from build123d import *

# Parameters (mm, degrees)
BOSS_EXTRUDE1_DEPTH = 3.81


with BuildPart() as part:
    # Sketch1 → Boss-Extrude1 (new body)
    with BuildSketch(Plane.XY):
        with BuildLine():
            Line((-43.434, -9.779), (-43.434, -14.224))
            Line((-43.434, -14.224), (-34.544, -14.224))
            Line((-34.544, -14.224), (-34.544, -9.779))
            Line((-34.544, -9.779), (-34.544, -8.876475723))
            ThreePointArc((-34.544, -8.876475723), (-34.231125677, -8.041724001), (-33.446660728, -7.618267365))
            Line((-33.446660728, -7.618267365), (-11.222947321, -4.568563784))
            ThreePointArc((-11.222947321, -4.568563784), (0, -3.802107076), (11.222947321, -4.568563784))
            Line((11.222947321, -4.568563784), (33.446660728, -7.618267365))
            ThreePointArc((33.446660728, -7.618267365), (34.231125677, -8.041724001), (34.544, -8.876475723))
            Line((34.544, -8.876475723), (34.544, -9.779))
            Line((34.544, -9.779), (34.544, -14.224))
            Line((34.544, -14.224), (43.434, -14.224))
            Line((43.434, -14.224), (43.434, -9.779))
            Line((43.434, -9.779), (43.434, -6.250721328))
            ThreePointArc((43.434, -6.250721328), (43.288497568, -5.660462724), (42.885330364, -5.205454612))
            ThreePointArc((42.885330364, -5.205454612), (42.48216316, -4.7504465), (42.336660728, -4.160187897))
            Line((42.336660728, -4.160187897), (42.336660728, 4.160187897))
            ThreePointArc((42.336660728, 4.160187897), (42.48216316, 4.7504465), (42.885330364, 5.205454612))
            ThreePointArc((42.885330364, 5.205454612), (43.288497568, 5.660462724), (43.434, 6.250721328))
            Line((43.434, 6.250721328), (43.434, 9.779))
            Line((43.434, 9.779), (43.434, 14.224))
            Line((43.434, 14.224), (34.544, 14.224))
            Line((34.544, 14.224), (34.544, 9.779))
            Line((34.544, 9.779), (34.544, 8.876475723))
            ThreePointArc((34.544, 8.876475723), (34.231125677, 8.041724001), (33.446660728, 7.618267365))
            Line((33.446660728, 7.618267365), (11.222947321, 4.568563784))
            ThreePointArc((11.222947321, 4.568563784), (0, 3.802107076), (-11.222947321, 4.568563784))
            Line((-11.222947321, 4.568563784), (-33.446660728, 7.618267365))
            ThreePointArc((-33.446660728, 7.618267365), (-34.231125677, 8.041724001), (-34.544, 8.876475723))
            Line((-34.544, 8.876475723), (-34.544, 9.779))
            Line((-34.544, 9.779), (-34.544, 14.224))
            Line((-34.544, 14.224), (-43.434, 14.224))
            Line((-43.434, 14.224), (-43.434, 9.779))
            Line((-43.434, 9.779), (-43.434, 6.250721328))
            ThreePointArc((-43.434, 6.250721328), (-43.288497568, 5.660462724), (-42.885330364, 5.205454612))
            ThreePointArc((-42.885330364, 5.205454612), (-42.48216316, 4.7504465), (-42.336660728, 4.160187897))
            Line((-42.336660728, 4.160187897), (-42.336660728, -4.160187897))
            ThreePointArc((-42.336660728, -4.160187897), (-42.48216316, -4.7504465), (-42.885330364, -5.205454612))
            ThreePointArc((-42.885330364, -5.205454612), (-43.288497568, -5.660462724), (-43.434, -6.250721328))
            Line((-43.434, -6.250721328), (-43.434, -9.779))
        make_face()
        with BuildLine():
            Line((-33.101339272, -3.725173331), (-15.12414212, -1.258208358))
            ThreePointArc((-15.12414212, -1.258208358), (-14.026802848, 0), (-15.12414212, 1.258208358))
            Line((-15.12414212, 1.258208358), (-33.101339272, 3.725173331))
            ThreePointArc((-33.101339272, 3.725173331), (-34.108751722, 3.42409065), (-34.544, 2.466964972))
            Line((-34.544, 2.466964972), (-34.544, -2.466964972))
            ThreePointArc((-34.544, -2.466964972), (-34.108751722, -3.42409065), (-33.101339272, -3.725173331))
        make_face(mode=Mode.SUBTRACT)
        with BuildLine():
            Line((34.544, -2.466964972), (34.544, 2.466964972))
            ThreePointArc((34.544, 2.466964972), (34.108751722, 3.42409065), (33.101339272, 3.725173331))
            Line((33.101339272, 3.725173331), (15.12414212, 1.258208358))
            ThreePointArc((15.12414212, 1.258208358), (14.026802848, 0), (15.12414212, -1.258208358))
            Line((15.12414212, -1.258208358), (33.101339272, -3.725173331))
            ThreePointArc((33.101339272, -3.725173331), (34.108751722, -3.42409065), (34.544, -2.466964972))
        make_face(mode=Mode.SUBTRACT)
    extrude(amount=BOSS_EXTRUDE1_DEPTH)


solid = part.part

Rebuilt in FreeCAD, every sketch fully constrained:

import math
import FreeCAD as App
import Part
import Sketcher
from FreeCAD import Vector
Q = App.Units.Quantity

doc = App.newDocument("Part")
body = doc.addObject("PartDesign::Body", "Body")

sketch1 = body.newObject("Sketcher::SketchObject", "Sketch")
sketch1.AttachmentSupport = (doc.getObject("XY_Plane"), [""])
sketch1.MapMode = "FlatFace"
sketch1.addGeometry([
    Part.LineSegment(Vector(-43.4, -14.2, 0), Vector(-34.5, -14.2, 0)),
    Part.LineSegment(Vector(-34.5, -14.2, 0), Vector(-34.5, -8.9, 0)),
    Part.ArcOfCircle(Part.Circle(Vector(-33.3, -8.9, 0), Vector(0, 0, 1), 1.3), math.radians(98), math.radians(180)),
    Part.LineSegment(Vector(-33.4, -7.6, 0), Vector(-11.2, -4.6, 0)),
    Part.ArcOfCircle(Part.Circle(Vector(0, -86.4, 0), Vector(0, 0, 1), 82.5), math.radians(82.19), math.radians(97.81)),
    Part.LineSegment(Vector(11.2, -4.6, 0), Vector(33.4, -7.6, 0)),
    Part.ArcOfCircle(Part.Circle(Vector(33.3, -8.9, 0), Vector(0, 0, 1), 1.3), math.radians(0), math.radians(82)),
    Part.LineSegment(Vector(34.5, -8.9, 0), Vector(34.5, -14.2, 0)),
    Part.LineSegment(Vector(34.5, -14.2, 0), Vector(43.4, -14.2, 0)),
    Part.LineSegment(Vector(43.4, -14.2, 0), Vector(43.4, -6.3, 0)),
    Part.ArcOfCircle(Part.Circle(Vector(42.2, -6.3, 0), Vector(0, 0, 1), 1.3), math.radians(0), math.radians(55)),
    Part.ArcOfCircle(Part.Circle(Vector(43.6, -4.2, 0), Vector(0, 0, 1), 1.3), math.radians(-180), math.radians(-125)),
    Part.LineSegment(Vector(42.3, -4.2, 0), Vector(42.3, 4.2, 0)),
    Part.ArcOfCircle(Part.Circle(Vector(43.6, 4.2, 0), Vector(0, 0, 1), 1.3), math.radians(125), math.radians(180)),
    Part.ArcOfCircle(Part.Circle(Vector(42.2, 6.3, 0), Vector(0, 0, 1), 1.3), math.radians(-55), math.radians(0)),
    Part.LineSegment(Vector(43.4, 6.3, 0), Vector(43.4, 14.2, 0)),
    Part.LineSegment(Vector(43.4, 14.2, 0), Vector(34.5, 14.2, 0)),
    Part.LineSegment(Vector(34.5, 14.2, 0), Vector(34.5, 8.9, 0)),
    Part.ArcOfCircle(Part.Circle(Vector(33.3, 8.9, 0), Vector(0, 0, 1), 1.3), math.radians(-82), math.radians(0)),
    Part.LineSegment(Vector(33.4, 7.6, 0), Vector(11.2, 4.6, 0)),
    Part.ArcOfCircle(Part.Circle(Vector(0, 86.4, 0), Vector(0, 0, 1), 82.5), math.radians(-97.81), math.radians(-82.19)),
    Part.LineSegment(Vector(-11.2, 4.6, 0), Vector(-33.4, 7.6, 0)),
    Part.ArcOfCircle(Part.Circle(Vector(-33.3, 8.9, 0), Vector(0, 0, 1), 1.3), math.radians(-180), math.radians(-98)),
    Part.LineSegment(Vector(-34.5, 8.9, 0), Vector(-34.5, 14.2, 0)),
    Part.LineSegment(Vector(-34.5, 14.2, 0), Vector(-43.4, 14.2, 0)),
    Part.LineSegment(Vector(-43.4, 14.2, 0), Vector(-43.4, 6.3, 0)),
    Part.ArcOfCircle(Part.Circle(Vector(-42.2, 6.3, 0), Vector(0, 0, 1), 1.3), math.radians(-180), math.radians(-125)),
    Part.ArcOfCircle(Part.Circle(Vector(-43.6, 4.2, 0), Vector(0, 0, 1), 1.3), math.radians(0), math.radians(55)),
    Part.LineSegment(Vector(-42.3, 4.2, 0), Vector(-42.3, -4.2, 0)),
    Part.ArcOfCircle(Part.Circle(Vector(-43.6, -4.2, 0), Vector(0, 0, 1), 1.3), math.radians(-55), math.radians(0)),
    Part.ArcOfCircle(Part.Circle(Vector(-42.2, -6.3, 0), Vector(0, 0, 1), 1.3), math.radians(125), math.radians(180)),
    Part.LineSegment(Vector(-43.4, -6.3, 0), Vector(-43.4, -14.2, 0)),
    Part.LineSegment(Vector(34.5, 2.5, 0), Vector(34.5, -2.5, 0)),
    Part.ArcOfCircle(Part.Circle(Vector(33.3, -2.5, 0), Vector(0, 0, 1), 1.3), math.radians(-98), math.radians(0)),
    Part.LineSegment(Vector(33.1, -3.7, 0), Vector(15.1, -1.3, 0)),
    Part.ArcOfCircle(Part.Circle(Vector(15.3, 0, 0), Vector(0, 0, 1), 1.3), math.radians(98), math.radians(262)),
    Part.LineSegment(Vector(15.1, 1.3, 0), Vector(33.1, 3.7, 0)),
    Part.ArcOfCircle(Part.Circle(Vector(33.3, 2.5, 0), Vector(0, 0, 1), 1.3), math.radians(0), math.radians(98)),
    Part.LineSegment(Vector(-15.1, -1.3, 0), Vector(-33.1, -3.7, 0)),
    Part.ArcOfCircle(Part.Circle(Vector(-33.3, -2.5, 0), Vector(0, 0, 1), 1.3), math.radians(180), math.radians(278)),
    Part.LineSegment(Vector(-34.5, -2.5, 0), Vector(-34.5, 2.5, 0)),
    Part.ArcOfCircle(Part.Circle(Vector(-33.3, 2.5, 0), Vector(0, 0, 1), 1.3), math.radians(82), math.radians(180)),
    Part.LineSegment(Vector(-33.1, 3.7, 0), Vector(-15.1, 1.3, 0)),
    Part.ArcOfCircle(Part.Circle(Vector(-15.3, 0, 0), Vector(0, 0, 1), 1.3), math.radians(-82), math.radians(82)),
], False)
sketch1.addConstraint([
    Sketcher.Constraint("Coincident", 0, 2, 1, 1),
    Sketcher.Constraint("Tangent", 1, 2, 2, 2),
    Sketcher.Constraint("Tangent", 2, 1, 3, 1),
    Sketcher.Constraint("Tangent", 3, 2, 4, 2),
    Sketcher.Constraint("Tangent", 4, 1, 5, 1),
    Sketcher.Constraint("Tangent", 5, 2, 6, 2),
    Sketcher.Constraint("Tangent", 6, 1, 7, 1),
    Sketcher.Constraint("Coincident", 7, 2, 8, 1),
    Sketcher.Constraint("Coincident", 8, 2, 9, 1),
    Sketcher.Constraint("Tangent", 9, 2, 10, 1),
    Sketcher.Constraint("Tangent", 10, 2, 11, 2),
    Sketcher.Constraint("Tangent", 11, 1, 12, 1),
    Sketcher.Constraint("Tangent", 12, 2, 13, 2),
    Sketcher.Constraint("Tangent", 13, 1, 14, 1),
    Sketcher.Constraint("Tangent", 14, 2, 15, 1),
    Sketcher.Constraint("Coincident", 15, 2, 16, 1),
    Sketcher.Constraint("Coincident", 16, 2, 17, 1),
    Sketcher.Constraint("Tangent", 17, 2, 18, 2),
    Sketcher.Constraint("Tangent", 18, 1, 19, 1),
    Sketcher.Constraint("Tangent", 19, 2, 20, 2),
    Sketcher.Constraint("Tangent", 20, 1, 21, 1),
    Sketcher.Constraint("Tangent", 21, 2, 22, 2),
    Sketcher.Constraint("Tangent", 22, 1, 23, 1),
    Sketcher.Constraint("Coincident", 23, 2, 24, 1),
    Sketcher.Constraint("Coincident", 24, 2, 25, 1),
    Sketcher.Constraint("Tangent", 25, 2, 26, 1),
    Sketcher.Constraint("Tangent", 26, 2, 27, 2),
    Sketcher.Constraint("Tangent", 27, 1, 28, 1),
    Sketcher.Constraint("Tangent", 28, 2, 29, 2),
    Sketcher.Constraint("Tangent", 29, 1, 30, 1),
    Sketcher.Constraint("Tangent", 30, 2, 31, 1),
    Sketcher.Constraint("Coincident", 31, 2, 0, 1),
    Sketcher.Constraint("Tangent", 32, 2, 33, 2),
    Sketcher.Constraint("Tangent", 33, 1, 34, 1),
    Sketcher.Constraint("Tangent", 34, 2, 35, 2),
    Sketcher.Constraint("Tangent", 35, 1, 36, 1),
    Sketcher.Constraint("Tangent", 36, 2, 37, 2),
    Sketcher.Constraint("Tangent", 37, 1, 32, 1),
    Sketcher.Constraint("Tangent", 38, 2, 39, 2),
    Sketcher.Constraint("Tangent", 39, 1, 40, 1),
    Sketcher.Constraint("Tangent", 40, 2, 41, 2),
    Sketcher.Constraint("Tangent", 41, 1, 42, 1),
    Sketcher.Constraint("Tangent", 42, 2, 43, 2),
    Sketcher.Constraint("Tangent", 43, 1, 38, 1),
    Sketcher.Constraint("Horizontal", 0),
    Sketcher.Constraint("Vertical", 1),
    Sketcher.Constraint("Vertical", 7),
    Sketcher.Constraint("Horizontal", 8),
    Sketcher.Constraint("Vertical", 9),
    Sketcher.Constraint("Vertical", 12),
    Sketcher.Constraint("Vertical", 15),
    Sketcher.Constraint("Horizontal", 16),
    Sketcher.Constraint("Vertical", 17),
    Sketcher.Constraint("Vertical", 23),
    Sketcher.Constraint("Horizontal", 24),
    Sketcher.Constraint("Vertical", 25),
    Sketcher.Constraint("Vertical", 28),
    Sketcher.Constraint("Vertical", 31),
    Sketcher.Constraint("Vertical", 32),
    Sketcher.Constraint("Vertical", 40),
    Sketcher.Constraint("Equal", 2, 6),
    Sketcher.Constraint("Equal", 6, 10),
    Sketcher.Constraint("Equal", 10, 11),
    Sketcher.Constraint("Equal", 11, 13),
    Sketcher.Constraint("Equal", 13, 14),
    Sketcher.Constraint("Equal", 14, 18),
    Sketcher.Constraint("Equal", 4, 20),
    Sketcher.Constraint("Equal", 18, 22),
    Sketcher.Constraint("Equal", 22, 26),
    Sketcher.Constraint("Equal", 26, 27),
    Sketcher.Constraint("Equal", 27, 29),
    Sketcher.Constraint("Equal", 29, 30),
    Sketcher.Constraint("Equal", 30, 33),
    Sketcher.Constraint("Equal", 33, 35),
    Sketcher.Constraint("Equal", 35, 37),
    Sketcher.Constraint("Equal", 37, 39),
    Sketcher.Constraint("Equal", 39, 41),
    Sketcher.Constraint("Equal", 41, 43),
    Sketcher.Constraint("Symmetric", 2, 3, 18, 3, -1, 1),
    Sketcher.Constraint("Symmetric", 4, 3, 20, 3, -1, 1),
    Sketcher.Constraint("Symmetric", 6, 3, 22, 3, -1, 1),
    Sketcher.Constraint("Symmetric", 10, 3, 26, 3, -1, 1),
    Sketcher.Constraint("Symmetric", 13, 3, 29, 3, -1, 1),
    Sketcher.Constraint("Symmetric", 37, 3, 39, 3, -1, 1),
    Sketcher.Constraint("Symmetric", 35, 3, 43, 3, -1, 1),
    Sketcher.Constraint("Symmetric", 15, 2, 31, 2, -1, 1),
    Sketcher.Constraint("Symmetric", 2, 3, 6, 3, -2),
    Sketcher.Constraint("Symmetric", 14, 3, 26, 3, -2),
    Sketcher.Constraint("Symmetric", 33, 1, 38, 2, -2),
    Sketcher.Constraint("PointOnObject", 4, 3, -2),
    Sketcher.Constraint("Parallel", 21, 34),
    Sketcher.Constraint("Parallel", 34, 42),
    Sketcher.Constraint("Horizontal", 0, 2, 7, 2),
    Sketcher.Constraint("Horizontal", 16, 2, 23, 2),
    Sketcher.Constraint("Vertical", 18, 3, 33, 3),
    Sketcher.Constraint("Radius", 2, Q("0.05 in")),
    Sketcher.Constraint("Radius", 4, Q("3.25 in")),
    Sketcher.Constraint("DistanceX", 0, 1, 0, 2, Q("0.35 in")),
    Sketcher.Constraint("DistanceX", 2, 3, -1, 1, Q("1.31 in")),
    Sketcher.Constraint("DistanceY", 0, 2, -1, 1, Q("0.56 in")),
    Sketcher.Constraint("DistanceY", 9, 1, 9, 2, 7.973279),
    Sketcher.Constraint("DistanceY", 32, 2, 32, 1, 4.93393),
    Sketcher.Constraint("Distance", 3, 22.431989),
    Sketcher.Constraint("DistanceY", 1, 1, 1, 2, 5.347524),
    Sketcher.Constraint("DistanceY", 12, 1, 12, 2, 8.320376),
])
pad1 = body.newObject("PartDesign::Pad", "Pad")
pad1.Profile = sketch1
pad1.Length = Q("0.15 in")

doc.recompute()
